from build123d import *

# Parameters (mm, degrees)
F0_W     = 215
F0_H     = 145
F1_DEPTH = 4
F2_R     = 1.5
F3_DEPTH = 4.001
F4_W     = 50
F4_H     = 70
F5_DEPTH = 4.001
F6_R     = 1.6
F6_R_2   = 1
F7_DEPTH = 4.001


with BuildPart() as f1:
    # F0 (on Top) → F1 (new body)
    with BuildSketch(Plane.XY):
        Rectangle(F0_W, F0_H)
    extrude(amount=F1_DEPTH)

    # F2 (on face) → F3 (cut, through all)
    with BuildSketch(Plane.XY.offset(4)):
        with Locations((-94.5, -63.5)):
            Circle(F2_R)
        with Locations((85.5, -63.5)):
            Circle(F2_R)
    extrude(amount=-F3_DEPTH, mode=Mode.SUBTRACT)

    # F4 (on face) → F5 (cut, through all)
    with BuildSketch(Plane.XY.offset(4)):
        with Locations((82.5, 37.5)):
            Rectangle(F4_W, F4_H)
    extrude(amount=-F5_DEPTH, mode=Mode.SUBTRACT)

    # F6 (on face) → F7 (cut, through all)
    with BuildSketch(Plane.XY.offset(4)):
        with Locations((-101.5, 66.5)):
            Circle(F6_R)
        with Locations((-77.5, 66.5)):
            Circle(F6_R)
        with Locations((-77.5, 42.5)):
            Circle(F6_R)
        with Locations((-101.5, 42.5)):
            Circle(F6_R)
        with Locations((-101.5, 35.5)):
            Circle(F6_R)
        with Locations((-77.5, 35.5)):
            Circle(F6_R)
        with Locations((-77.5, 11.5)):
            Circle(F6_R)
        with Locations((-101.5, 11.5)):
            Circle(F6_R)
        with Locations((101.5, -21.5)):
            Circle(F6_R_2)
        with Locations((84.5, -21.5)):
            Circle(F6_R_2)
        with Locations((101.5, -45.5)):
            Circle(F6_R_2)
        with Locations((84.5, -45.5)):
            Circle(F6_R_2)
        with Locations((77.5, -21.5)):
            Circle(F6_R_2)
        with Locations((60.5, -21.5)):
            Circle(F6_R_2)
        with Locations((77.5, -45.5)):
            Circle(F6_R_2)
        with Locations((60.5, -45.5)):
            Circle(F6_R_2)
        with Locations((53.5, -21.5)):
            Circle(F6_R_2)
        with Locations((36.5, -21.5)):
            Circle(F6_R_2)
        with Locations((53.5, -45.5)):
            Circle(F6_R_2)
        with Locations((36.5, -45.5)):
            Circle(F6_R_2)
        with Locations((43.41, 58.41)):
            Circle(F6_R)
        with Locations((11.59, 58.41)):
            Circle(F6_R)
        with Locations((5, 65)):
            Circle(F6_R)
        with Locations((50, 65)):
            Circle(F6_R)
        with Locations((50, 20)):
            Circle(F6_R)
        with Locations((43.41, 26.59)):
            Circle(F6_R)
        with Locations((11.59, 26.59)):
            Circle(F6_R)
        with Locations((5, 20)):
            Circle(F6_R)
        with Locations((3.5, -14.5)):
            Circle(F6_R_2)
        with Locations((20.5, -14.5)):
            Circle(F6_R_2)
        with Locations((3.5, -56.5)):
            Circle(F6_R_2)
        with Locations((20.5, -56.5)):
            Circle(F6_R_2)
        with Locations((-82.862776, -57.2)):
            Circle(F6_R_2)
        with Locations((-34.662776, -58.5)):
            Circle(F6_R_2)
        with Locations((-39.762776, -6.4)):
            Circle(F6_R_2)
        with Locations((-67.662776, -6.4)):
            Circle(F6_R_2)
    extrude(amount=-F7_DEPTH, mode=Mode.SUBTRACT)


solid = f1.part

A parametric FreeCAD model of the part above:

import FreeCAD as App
import Part
import Sketcher

V = App.Vector


def add_polygon(sketch, points):
    """Adds a closed chain of lines whose ends are joined by coincident constraints."""
    first, n = sketch.GeometryCount, len(points)
    for a, b in zip(points, points[1:] + points[:1]):
        sketch.addGeometry(Part.LineSegment(App.Vector(*a, 0), App.Vector(*b, 0)), False)
    for i in range(n):
        sketch.addConstraint(Sketcher.Constraint("Coincident", first + i, 2, first + (i + 1) % n, 1))

doc = App.newDocument("Part")
body = doc.addObject("PartDesign::Body", "Body")

# Sketch on XY plane
sketch1 = body.newObject("Sketcher::SketchObject", "Sketch")
sketch1.AttachmentSupport = (doc.getObject("XY_Plane"), [""])
sketch1.MapMode = "FlatFace"
add_polygon(sketch1, [(-107.5, 72.5), (-107.5, -72.5), (107.5, -72.5), (107.5, 72.5)])  # lines 0-3
sketch1.addConstraint([
    Sketcher.Constraint("Vertical", 0),
    Sketcher.Constraint("Horizontal", 1),
    Sketcher.Constraint("Vertical", 2),
    Sketcher.Constraint("Horizontal", 3),
    Sketcher.Constraint("Symmetric", 0, 2, 2, 2, -1, 1),
    Sketcher.Constraint("DistanceX", 1, 1, 1, 2, 215.0),
    Sketcher.Constraint("DistanceY", 0, 2, 0, 1, 145.0),
])
pad1 = body.newObject("PartDesign::Pad", "Pad")
pad1.Profile = sketch1
pad1.Length = 4

# Sketch on XY plane
sketch2 = body.newObject("Sketcher::SketchObject", "Sketch001")
sketch2.AttachmentSupport = (doc.getObject("XY_Plane"), [""])
sketch2.MapMode = "FlatFace"
sketch2.AttachmentOffset = App.Placement(V(0, 0, 4), App.Rotation())
sketch2.addGeometry([
    Part.Circle(V(-94.5, -63.5, 0), V(0, 0, 1), 1.5),
    Part.Circle(V(85.5, -63.5, 0), V(0, 0, 1), 1.5),
], False)
sketch2.addConstraint([
    Sketcher.Constraint("Equal", 0, 1),
    Sketcher.Constraint("Horizontal", 0, 3, 1, 3),
    Sketcher.Constraint("Diameter", 0, 3.0),
    Sketcher.Constraint("DistanceX", 0, 3, 1, 3, 180.0),
    Sketcher.Constraint("DistanceX", 0, 3, -1, 1, 94.5),
    Sketcher.Constraint("DistanceY", 0, 3, -1, 1, 63.5),
])
pocket1 = body.newObject("PartDesign::Pocket", "Pocket")
pocket1.Profile = sketch2
pocket1.Type = "ThroughAll"

# Sketch on XY plane
sketch3 = body.newObject("Sketcher::SketchObject", "Sketch002")
sketch3.AttachmentSupport = (doc.getObject("XY_Plane"), [""])
sketch3.MapMode = "FlatFace"
sketch3.AttachmentOffset = App.Placement(V(0, 0, 4), App.Rotation())
add_polygon(sketch3, [(57.5, 72.5), (57.5, 2.5), (107.5, 2.5), (107.5, 72.5)])  # lines 0-3
sketch3.addConstraint([
    Sketcher.Constraint("Vertical", 0),
    Sketcher.Constraint("Horizontal", 1),
    Sketcher.Constraint("Vertical", 2),
    Sketcher.Constraint("Horizontal", 3),
    Sketcher.Constraint("DistanceX", 1, 1, 1, 2, 50.0),
    Sketcher.Constraint("DistanceY", 0, 2, 0, 1, 70.0),
    Sketcher.Constraint("DistanceX", -1, 1, 0, 2, 57.5),
    Sketcher.Constraint("DistanceY", -1, 1, 0, 2, 2.5),
])
pocket2 = body.newObject("PartDesign::Pocket", "Pocket001")
pocket2.Profile = sketch3
pocket2.Type = "ThroughAll"

# Sketch on XY plane
sketch4 = body.newObject("Sketcher::SketchObject", "Sketch003")
sketch4.AttachmentSupport = (doc.getObject("XY_Plane"), [""])
sketch4.MapMode = "FlatFace"
sketch4.AttachmentOffset = App.Placement(V(0, 0, 4), App.Rotation())
sketch4.addGeometry([
    Part.Circle(V(-101.5, 66.5, 0), V(0, 0, 1), 1.6),  # 0
    Part.Circle(V(-77.5, 66.5, 0), V(0, 0, 1), 1.6),  # 1
    Part.Circle(V(-77.5, 42.5, 0), V(0, 0, 1), 1.6),  # 2
    Part.Circle(V(-101.5, 42.5, 0), V(0, 0, 1), 1.6),  # 3
    Part.Circle(V(-101.5, 35.5, 0), V(0, 0, 1), 1.6),  # 4
    Part.Circle(V(-77.5, 35.5, 0), V(0, 0, 1), 1.6),  # 5
    Part.Circle(V(-77.5, 11.5, 0), V(0, 0, 1), 1.6),  # 6
    Part.Circle(V(-101.5, 11.5, 0), V(0, 0, 1), 1.6),  # 7
    Part.Circle(V(101.5, -21.5, 0), V(0, 0, 1), 1),  # 8
    Part.Circle(V(84.5, -21.5, 0), V(0, 0, 1), 1),  # 9
    Part.Circle(V(101.5, -45.5, 0), V(0, 0, 1), 1),  # 10
    Part.Circle(V(84.5, -45.5, 0), V(0, 0, 1), 1),  # 11
    Part.Circle(V(77.5, -21.5, 0), V(0, 0, 1), 1),  # 12
    Part.Circle(V(60.5, -21.5, 0), V(0, 0, 1), 1),  # 13
    Part.Circle(V(77.5, -45.5, 0), V(0, 0, 1), 1),  # 14
    Part.Circle(V(60.5, -45.5, 0), V(0, 0, 1), 1),  # 15
    Part.Circle(V(53.5, -21.5, 0), V(0, 0, 1), 1),  # 16
    Part.Circle(V(36.5, -21.5, 0), V(0, 0, 1), 1),  # 17
    Part.Circle(V(53.5, -45.5, 0), V(0, 0, 1), 1),  # 18
    Part.Circle(V(36.5, -45.5, 0), V(0, 0, 1), 1),  # 19
    Part.Circle(V(43.41, 58.41, 0), V(0, 0, 1), 1.6),  # 20
    Part.Circle(V(11.59, 58.41, 0), V(0, 0, 1), 1.6),  # 21
    Part.Circle(V(5, 65, 0), V(0, 0, 1), 1.6),  # 22
    Part.Circle(V(50, 65, 0), V(0, 0, 1), 1.6),  # 23
    Part.Circle(V(50, 20, 0), V(0, 0, 1), 1.6),  # 24
    Part.Circle(V(43.41, 26.59, 0), V(0, 0, 1), 1.6),  # 25
    Part.Circle(V(11.59, 26.59, 0), V(0, 0, 1), 1.6),  # 26
    Part.Circle(V(5, 20, 0), V(0, 0, 1), 1.6),  # 27
    Part.Circle(V(3.5, -14.5, 0), V(0, 0, 1), 1),  # 28
    Part.Circle(V(20.5, -14.5, 0), V(0, 0, 1), 1),  # 29
    Part.Circle(V(3.5, -56.5, 0), V(0, 0, 1), 1),  # 30
    Part.Circle(V(20.5, -56.5, 0), V(0, 0, 1), 1),  # 31
    Part.Circle(V(-82.862776, -57.2, 0), V(0, 0, 1), 1),  # 32
    Part.Circle(V(-34.662776, -58.5, 0), V(0, 0, 1), 1),  # 33
    Part.Circle(V(-39.762776, -6.4, 0), V(0, 0, 1), 1),  # 34
    Part.Circle(V(-67.662776, -6.4, 0), V(0, 0, 1), 1),  # 35
], False)
sketch4.addConstraint([
    Sketcher.Constraint("Equal", 0, 1),
    Sketcher.Constraint("Equal", 1, 2),
    Sketcher.Constraint("Equal", 2, 3),
    Sketcher.Constraint("Equal", 3, 4),
    Sketcher.Constraint("Equal", 4, 5),
    Sketcher.Constraint("Equal", 5, 6),
    Sketcher.Constraint("Equal", 6, 7),
    Sketcher.Constraint("Equal", 8, 9),
    Sketcher.Constraint("Equal", 9, 10),
    Sketcher.Constraint("Equal", 10, 11),
    Sketcher.Constraint("Equal", 11, 12),
    Sketcher.Constraint("Equal", 12, 13),
    Sketcher.Constraint("Equal", 13, 14),
    Sketcher.Constraint("Equal", 14, 15),
    Sketcher.Constraint("Equal", 15, 16),
    Sketcher.Constraint("Equal", 16, 17),
    Sketcher.Constraint("Equal", 17, 18),
    Sketcher.Constraint("Equal", 18, 19),
    Sketcher.Constraint("Equal", 7, 20),
    Sketcher.Constraint("Equal", 20, 21),
    Sketcher.Constraint("Equal", 21, 22),
    Sketcher.Constraint("Equal", 22, 23),
    Sketcher.Constraint("Equal", 23, 24),
    Sketcher.Constraint("Equal", 24, 25),
    Sketcher.Constraint("Equal", 25, 26),
    Sketcher.Constraint("Equal", 26, 27),
    Sketcher.Constraint("Equal", 19, 28),
    Sketcher.Constraint("Equal", 28, 29),
    Sketcher.Constraint("Equal", 29, 30),
    Sketcher.Constraint("Equal", 30, 31),
    Sketcher.Constraint("Equal", 31, 32),
    Sketcher.Constraint("Equal", 32, 33),
    Sketcher.Constraint("Equal", 33, 34),
    Sketcher.Constraint("Equal", 34, 35),
    Sketcher.Constraint("Horizontal", 0, 3, 1, 3),
    Sketcher.Constraint("Horizontal", 2, 3, 3, 3),
    Sketcher.Constraint("Horizontal", 4, 3, 5, 3),
    Sketcher.Constraint("Horizontal", 6, 3, 7, 3),
    Sketcher.Constraint("Horizontal", 8, 3, 9, 3),
    Sketcher.Constraint("Horizontal", 10, 3, 11, 3),
    Sketcher.Constraint("Horizontal", 9, 3, 12, 3),
    Sketcher.Constraint("Horizontal", 12, 3, 13, 3),
    Sketcher.Constraint("Horizontal", 11, 3, 14, 3),
    Sketcher.Constraint("Horizontal", 14, 3, 15, 3),
    Sketcher.Constraint("Horizontal", 13, 3, 16, 3),
    Sketcher.Constraint("Horizontal", 16, 3, 17, 3),
    Sketcher.Constraint("Horizontal", 15, 3, 18, 3),
    Sketcher.Constraint("Horizontal", 18, 3, 19, 3),
    Sketcher.Constraint("Horizontal", 20, 3, 21, 3),
    Sketcher.Constraint("Horizontal", 22, 3, 23, 3),
    Sketcher.Constraint("Horizontal", 25, 3, 26, 3),
    Sketcher.Constraint("Horizontal", 24, 3, 27, 3),
    Sketcher.Constraint("Horizontal", 28, 3, 29, 3),
    Sketcher.Constraint("Horizontal", 30, 3, 31, 3),
    Sketcher.Constraint("Horizontal", 34, 3, 35, 3),
    Sketcher.Constraint("Vertical", 1, 3, 2, 3),
    Sketcher.Constraint("Vertical", 0, 3, 3, 3),
    Sketcher.Constraint("Vertical", 3, 3, 4, 3),
    Sketcher.Constraint("Vertical", 2, 3, 5, 3),
    Sketcher.Constraint("Vertical", 5, 3, 6, 3),
    Sketcher.Constraint("Vertical", 4, 3, 7, 3),
    Sketcher.Constraint("Vertical", 8, 3, 10, 3),
    Sketcher.Constraint("Vertical", 9, 3, 11, 3),
    Sketcher.Constraint("Vertical", 12, 3, 14, 3),
    Sketcher.Constraint("Vertical", 13, 3, 15, 3),
    Sketcher.Constraint("Vertical", 16, 3, 18, 3),
    Sketcher.Constraint("Vertical", 17, 3, 19, 3),
    Sketcher.Constraint("Vertical", 23, 3, 24, 3),
    Sketcher.Constraint("Vertical", 20, 3, 25, 3),
    Sketcher.Constraint("Vertical", 21, 3, 26, 3),
    Sketcher.Constraint("Vertical", 22, 3, 27, 3),
    Sketcher.Constraint("Vertical", 28, 3, 30, 3),
    Sketcher.Constraint("Vertical", 29, 3, 31, 3),
    Sketcher.Constraint("Diameter", 8, 2.0),
    Sketcher.Constraint("Diameter", 0, 3.2),
    Sketcher.Constraint("DistanceX", -1, 1, 22, 3, 5.0),
    Sketcher.Constraint("DistanceY", -1, 1, 22, 3, 65.0),
    Sketcher.Constraint("DistanceX", -1, 1, 23, 3, 50.0),
    Sketcher.Constraint("DistanceY", -1, 1, 24, 3, 20.0),
    Sketcher.Constraint("DistanceX", 0, 3, 1, 3, 24.0),
    Sketcher.Constraint("DistanceY", 2, 3, 1, 3, 24.0),
    Sketcher.Constraint("DistanceY", 4, 3, 3, 3, 7.0),
    Sketcher.Constraint("DistanceY", 6, 3, 5, 3, 24.0),
    Sketcher.Constraint("DistanceX", 6, 3, 8, 3, 179.0),
    Sketcher.Constraint("DistanceY", 8, 3, 6, 3, 33.0),
    Sketcher.Constraint("DistanceX", 9, 3, 8, 3, 17.0),
    Sketcher.Constraint("DistanceY", 10, 3, 8, 3, 24.0),
    Sketcher.Constraint("DistanceX", 12, 3, 9, 3, 7.0),
    Sketcher.Constraint("DistanceX", 13, 3, 12, 3, 17.0),
    Sketcher.Constraint("DistanceX", 16, 3, 13, 3, 7.0),
    Sketcher.Constraint("DistanceX", 17, 3, 16, 3, 17.0),
    Sketcher.Constraint("DistanceX", 28, 3, 17, 3, 33.0),
    Sketcher.Constraint("DistanceY", 17, 3, 28, 3, 7.0),
    Sketcher.Constraint("DistanceX", 28, 3, 29, 3, 17.0),
    Sketcher.Constraint("DistanceY", 30, 3, 19, 3, 11.0),
    Sketcher.Constraint("DistanceY", 33, 3, 30, 3, 2.0),
    Sketcher.Constraint("DistanceX", 0, 3, -1, 1, 101.5),
    Sketcher.Constraint("DistanceY", -1, 1, 0, 3, 66.5),
    Sketcher.Constraint("DistanceY", 32, 3, -1, 1, 57.2),
    Sketcher.Constraint("DistanceY", 34, 3, -1, 1, 6.4),
    Sketcher.Constraint("DistanceX", 32, 3, 33, 3, 48.2),
    Sketcher.Constraint("DistanceX", 34, 3, 33, 3, 5.1),
    Sketcher.Constraint("DistanceX", 35, 3, 34, 3, 27.9),
    Sketcher.Constraint("DistanceX", -1, 1, 20, 3, 43.41),
    Sketcher.Constraint("DistanceY", -1, 1, 20, 3, 58.41),
    Sketcher.Constraint("DistanceX", -1, 1, 21, 3, 11.59),
    Sketcher.Constraint("DistanceY", -1, 1, 25, 3, 26.59),
    Sketcher.Constraint("DistanceX", 32, 3, -1, 1, 82.862776),
])
pocket3 = body.newObject("PartDesign::Pocket", "Pocket002")
pocket3.Profile = sketch4
pocket3.Type = "ThroughAll"

doc.recompute()
